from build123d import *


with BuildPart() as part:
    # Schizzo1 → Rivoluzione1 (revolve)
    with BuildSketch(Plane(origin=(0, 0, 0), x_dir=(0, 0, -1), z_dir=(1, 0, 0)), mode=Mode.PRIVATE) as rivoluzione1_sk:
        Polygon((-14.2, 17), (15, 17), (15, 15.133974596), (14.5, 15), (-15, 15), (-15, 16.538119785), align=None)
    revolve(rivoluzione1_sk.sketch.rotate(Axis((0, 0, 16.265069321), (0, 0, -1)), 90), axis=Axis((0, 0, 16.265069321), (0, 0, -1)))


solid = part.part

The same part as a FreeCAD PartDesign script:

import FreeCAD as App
import Part
import Sketcher
Q = App.Units.Quantity

doc = App.newDocument("Part")
params = doc.addObject("Spreadsheet::Sheet", "Params")
for row, (alias, value) in enumerate([
    ("sketch1_height", "29.2 mm"),
    ("sketch1_height2", "29.5 mm"),
    ("revolution_angle", "360 deg"),
], start=1):
    params.set(f"A{row}", alias)
    params.set(f"B{row}", "=" + value)
    params.setAlias(f"B{row}", alias)

body = doc.addObject("PartDesign::Body", "Body")

# Sketch on YZ plane
sketch1 = doc.addObject("Sketcher::SketchObject", "Sketch")
body.addObject(sketch1)
sketch1.AttachmentSupport = (doc.YZ_Plane, [""])
sketch1.MapMode = "FlatFace"
sketch1.addGeometry([
    Part.LineSegment(App.Vector(17, -15, 0), App.Vector(17, 14.2, 0)),  # 0
    Part.LineSegment(App.Vector(17, 14.2, 0), App.Vector(16.5, 15, 0)),  # 1
    Part.LineSegment(App.Vector(16.5, 15, 0), App.Vector(15, 15, 0)),  # 2
    Part.LineSegment(App.Vector(15, 15, 0), App.Vector(15, -14.5, 0)),  # 3
    Part.LineSegment(App.Vector(15, -14.5, 0), App.Vector(15.1, -15, 0)),  # 4
    Part.LineSegment(App.Vector(15.1, -15, 0), App.Vector(17, -15, 0)),  # 5
], False)
sketch1.addConstraint([
    Sketcher.Constraint("Coincident", 0, 2, 1, 1),
    Sketcher.Constraint("Coincident", 1, 2, 2, 1),
    Sketcher.Constraint("Coincident", 2, 2, 3, 1),
    Sketcher.Constraint("Coincident", 3, 2, 4, 1),
    Sketcher.Constraint("Coincident", 4, 2, 5, 1),
    Sketcher.Constraint("Coincident", 5, 2, 0, 1),
    Sketcher.Constraint("Vertical", 0),
    Sketcher.Constraint("Horizontal", 2),
    Sketcher.Constraint("Vertical", 3),
    Sketcher.Constraint("Horizontal", 5),
    Sketcher.Constraint("Angle", 1, Q("120 deg")),
    Sketcher.Constraint("Angle", 4, Q("-75 deg")),
    Sketcher.Constraint("DistanceY", 0, 1, 0, 2, Q("29.2 mm")),
    Sketcher.Constraint("DistanceY", 3, 2, 3, 1, Q("29.5 mm")),
    Sketcher.Constraint("DistanceX", -1, 1, 0, 2, Q("17 mm")),
    Sketcher.Constraint("DistanceY", -1, 1, 1, 2, Q("15 mm")),
    Sketcher.Constraint("DistanceX", -1, 1, 2, 2, Q("15 mm")),
    Sketcher.Constraint("DistanceY", 4, 2, -1, 1, Q("15 mm")),
])
sketch1.setExpression("Constraints[12]", "Params.sketch1_height")
sketch1.setExpression("Constraints[13]", "Params.sketch1_height2")
revolution = doc.addObject("PartDesign::Revolution", "Revolution")
body.addObject(revolution)
revolution.Profile = sketch1
revolution.ReferenceAxis = (sketch1, ["V_Axis"])
revolution.setExpression("Angle", "Params.revolution_angle")

doc.recompute()
